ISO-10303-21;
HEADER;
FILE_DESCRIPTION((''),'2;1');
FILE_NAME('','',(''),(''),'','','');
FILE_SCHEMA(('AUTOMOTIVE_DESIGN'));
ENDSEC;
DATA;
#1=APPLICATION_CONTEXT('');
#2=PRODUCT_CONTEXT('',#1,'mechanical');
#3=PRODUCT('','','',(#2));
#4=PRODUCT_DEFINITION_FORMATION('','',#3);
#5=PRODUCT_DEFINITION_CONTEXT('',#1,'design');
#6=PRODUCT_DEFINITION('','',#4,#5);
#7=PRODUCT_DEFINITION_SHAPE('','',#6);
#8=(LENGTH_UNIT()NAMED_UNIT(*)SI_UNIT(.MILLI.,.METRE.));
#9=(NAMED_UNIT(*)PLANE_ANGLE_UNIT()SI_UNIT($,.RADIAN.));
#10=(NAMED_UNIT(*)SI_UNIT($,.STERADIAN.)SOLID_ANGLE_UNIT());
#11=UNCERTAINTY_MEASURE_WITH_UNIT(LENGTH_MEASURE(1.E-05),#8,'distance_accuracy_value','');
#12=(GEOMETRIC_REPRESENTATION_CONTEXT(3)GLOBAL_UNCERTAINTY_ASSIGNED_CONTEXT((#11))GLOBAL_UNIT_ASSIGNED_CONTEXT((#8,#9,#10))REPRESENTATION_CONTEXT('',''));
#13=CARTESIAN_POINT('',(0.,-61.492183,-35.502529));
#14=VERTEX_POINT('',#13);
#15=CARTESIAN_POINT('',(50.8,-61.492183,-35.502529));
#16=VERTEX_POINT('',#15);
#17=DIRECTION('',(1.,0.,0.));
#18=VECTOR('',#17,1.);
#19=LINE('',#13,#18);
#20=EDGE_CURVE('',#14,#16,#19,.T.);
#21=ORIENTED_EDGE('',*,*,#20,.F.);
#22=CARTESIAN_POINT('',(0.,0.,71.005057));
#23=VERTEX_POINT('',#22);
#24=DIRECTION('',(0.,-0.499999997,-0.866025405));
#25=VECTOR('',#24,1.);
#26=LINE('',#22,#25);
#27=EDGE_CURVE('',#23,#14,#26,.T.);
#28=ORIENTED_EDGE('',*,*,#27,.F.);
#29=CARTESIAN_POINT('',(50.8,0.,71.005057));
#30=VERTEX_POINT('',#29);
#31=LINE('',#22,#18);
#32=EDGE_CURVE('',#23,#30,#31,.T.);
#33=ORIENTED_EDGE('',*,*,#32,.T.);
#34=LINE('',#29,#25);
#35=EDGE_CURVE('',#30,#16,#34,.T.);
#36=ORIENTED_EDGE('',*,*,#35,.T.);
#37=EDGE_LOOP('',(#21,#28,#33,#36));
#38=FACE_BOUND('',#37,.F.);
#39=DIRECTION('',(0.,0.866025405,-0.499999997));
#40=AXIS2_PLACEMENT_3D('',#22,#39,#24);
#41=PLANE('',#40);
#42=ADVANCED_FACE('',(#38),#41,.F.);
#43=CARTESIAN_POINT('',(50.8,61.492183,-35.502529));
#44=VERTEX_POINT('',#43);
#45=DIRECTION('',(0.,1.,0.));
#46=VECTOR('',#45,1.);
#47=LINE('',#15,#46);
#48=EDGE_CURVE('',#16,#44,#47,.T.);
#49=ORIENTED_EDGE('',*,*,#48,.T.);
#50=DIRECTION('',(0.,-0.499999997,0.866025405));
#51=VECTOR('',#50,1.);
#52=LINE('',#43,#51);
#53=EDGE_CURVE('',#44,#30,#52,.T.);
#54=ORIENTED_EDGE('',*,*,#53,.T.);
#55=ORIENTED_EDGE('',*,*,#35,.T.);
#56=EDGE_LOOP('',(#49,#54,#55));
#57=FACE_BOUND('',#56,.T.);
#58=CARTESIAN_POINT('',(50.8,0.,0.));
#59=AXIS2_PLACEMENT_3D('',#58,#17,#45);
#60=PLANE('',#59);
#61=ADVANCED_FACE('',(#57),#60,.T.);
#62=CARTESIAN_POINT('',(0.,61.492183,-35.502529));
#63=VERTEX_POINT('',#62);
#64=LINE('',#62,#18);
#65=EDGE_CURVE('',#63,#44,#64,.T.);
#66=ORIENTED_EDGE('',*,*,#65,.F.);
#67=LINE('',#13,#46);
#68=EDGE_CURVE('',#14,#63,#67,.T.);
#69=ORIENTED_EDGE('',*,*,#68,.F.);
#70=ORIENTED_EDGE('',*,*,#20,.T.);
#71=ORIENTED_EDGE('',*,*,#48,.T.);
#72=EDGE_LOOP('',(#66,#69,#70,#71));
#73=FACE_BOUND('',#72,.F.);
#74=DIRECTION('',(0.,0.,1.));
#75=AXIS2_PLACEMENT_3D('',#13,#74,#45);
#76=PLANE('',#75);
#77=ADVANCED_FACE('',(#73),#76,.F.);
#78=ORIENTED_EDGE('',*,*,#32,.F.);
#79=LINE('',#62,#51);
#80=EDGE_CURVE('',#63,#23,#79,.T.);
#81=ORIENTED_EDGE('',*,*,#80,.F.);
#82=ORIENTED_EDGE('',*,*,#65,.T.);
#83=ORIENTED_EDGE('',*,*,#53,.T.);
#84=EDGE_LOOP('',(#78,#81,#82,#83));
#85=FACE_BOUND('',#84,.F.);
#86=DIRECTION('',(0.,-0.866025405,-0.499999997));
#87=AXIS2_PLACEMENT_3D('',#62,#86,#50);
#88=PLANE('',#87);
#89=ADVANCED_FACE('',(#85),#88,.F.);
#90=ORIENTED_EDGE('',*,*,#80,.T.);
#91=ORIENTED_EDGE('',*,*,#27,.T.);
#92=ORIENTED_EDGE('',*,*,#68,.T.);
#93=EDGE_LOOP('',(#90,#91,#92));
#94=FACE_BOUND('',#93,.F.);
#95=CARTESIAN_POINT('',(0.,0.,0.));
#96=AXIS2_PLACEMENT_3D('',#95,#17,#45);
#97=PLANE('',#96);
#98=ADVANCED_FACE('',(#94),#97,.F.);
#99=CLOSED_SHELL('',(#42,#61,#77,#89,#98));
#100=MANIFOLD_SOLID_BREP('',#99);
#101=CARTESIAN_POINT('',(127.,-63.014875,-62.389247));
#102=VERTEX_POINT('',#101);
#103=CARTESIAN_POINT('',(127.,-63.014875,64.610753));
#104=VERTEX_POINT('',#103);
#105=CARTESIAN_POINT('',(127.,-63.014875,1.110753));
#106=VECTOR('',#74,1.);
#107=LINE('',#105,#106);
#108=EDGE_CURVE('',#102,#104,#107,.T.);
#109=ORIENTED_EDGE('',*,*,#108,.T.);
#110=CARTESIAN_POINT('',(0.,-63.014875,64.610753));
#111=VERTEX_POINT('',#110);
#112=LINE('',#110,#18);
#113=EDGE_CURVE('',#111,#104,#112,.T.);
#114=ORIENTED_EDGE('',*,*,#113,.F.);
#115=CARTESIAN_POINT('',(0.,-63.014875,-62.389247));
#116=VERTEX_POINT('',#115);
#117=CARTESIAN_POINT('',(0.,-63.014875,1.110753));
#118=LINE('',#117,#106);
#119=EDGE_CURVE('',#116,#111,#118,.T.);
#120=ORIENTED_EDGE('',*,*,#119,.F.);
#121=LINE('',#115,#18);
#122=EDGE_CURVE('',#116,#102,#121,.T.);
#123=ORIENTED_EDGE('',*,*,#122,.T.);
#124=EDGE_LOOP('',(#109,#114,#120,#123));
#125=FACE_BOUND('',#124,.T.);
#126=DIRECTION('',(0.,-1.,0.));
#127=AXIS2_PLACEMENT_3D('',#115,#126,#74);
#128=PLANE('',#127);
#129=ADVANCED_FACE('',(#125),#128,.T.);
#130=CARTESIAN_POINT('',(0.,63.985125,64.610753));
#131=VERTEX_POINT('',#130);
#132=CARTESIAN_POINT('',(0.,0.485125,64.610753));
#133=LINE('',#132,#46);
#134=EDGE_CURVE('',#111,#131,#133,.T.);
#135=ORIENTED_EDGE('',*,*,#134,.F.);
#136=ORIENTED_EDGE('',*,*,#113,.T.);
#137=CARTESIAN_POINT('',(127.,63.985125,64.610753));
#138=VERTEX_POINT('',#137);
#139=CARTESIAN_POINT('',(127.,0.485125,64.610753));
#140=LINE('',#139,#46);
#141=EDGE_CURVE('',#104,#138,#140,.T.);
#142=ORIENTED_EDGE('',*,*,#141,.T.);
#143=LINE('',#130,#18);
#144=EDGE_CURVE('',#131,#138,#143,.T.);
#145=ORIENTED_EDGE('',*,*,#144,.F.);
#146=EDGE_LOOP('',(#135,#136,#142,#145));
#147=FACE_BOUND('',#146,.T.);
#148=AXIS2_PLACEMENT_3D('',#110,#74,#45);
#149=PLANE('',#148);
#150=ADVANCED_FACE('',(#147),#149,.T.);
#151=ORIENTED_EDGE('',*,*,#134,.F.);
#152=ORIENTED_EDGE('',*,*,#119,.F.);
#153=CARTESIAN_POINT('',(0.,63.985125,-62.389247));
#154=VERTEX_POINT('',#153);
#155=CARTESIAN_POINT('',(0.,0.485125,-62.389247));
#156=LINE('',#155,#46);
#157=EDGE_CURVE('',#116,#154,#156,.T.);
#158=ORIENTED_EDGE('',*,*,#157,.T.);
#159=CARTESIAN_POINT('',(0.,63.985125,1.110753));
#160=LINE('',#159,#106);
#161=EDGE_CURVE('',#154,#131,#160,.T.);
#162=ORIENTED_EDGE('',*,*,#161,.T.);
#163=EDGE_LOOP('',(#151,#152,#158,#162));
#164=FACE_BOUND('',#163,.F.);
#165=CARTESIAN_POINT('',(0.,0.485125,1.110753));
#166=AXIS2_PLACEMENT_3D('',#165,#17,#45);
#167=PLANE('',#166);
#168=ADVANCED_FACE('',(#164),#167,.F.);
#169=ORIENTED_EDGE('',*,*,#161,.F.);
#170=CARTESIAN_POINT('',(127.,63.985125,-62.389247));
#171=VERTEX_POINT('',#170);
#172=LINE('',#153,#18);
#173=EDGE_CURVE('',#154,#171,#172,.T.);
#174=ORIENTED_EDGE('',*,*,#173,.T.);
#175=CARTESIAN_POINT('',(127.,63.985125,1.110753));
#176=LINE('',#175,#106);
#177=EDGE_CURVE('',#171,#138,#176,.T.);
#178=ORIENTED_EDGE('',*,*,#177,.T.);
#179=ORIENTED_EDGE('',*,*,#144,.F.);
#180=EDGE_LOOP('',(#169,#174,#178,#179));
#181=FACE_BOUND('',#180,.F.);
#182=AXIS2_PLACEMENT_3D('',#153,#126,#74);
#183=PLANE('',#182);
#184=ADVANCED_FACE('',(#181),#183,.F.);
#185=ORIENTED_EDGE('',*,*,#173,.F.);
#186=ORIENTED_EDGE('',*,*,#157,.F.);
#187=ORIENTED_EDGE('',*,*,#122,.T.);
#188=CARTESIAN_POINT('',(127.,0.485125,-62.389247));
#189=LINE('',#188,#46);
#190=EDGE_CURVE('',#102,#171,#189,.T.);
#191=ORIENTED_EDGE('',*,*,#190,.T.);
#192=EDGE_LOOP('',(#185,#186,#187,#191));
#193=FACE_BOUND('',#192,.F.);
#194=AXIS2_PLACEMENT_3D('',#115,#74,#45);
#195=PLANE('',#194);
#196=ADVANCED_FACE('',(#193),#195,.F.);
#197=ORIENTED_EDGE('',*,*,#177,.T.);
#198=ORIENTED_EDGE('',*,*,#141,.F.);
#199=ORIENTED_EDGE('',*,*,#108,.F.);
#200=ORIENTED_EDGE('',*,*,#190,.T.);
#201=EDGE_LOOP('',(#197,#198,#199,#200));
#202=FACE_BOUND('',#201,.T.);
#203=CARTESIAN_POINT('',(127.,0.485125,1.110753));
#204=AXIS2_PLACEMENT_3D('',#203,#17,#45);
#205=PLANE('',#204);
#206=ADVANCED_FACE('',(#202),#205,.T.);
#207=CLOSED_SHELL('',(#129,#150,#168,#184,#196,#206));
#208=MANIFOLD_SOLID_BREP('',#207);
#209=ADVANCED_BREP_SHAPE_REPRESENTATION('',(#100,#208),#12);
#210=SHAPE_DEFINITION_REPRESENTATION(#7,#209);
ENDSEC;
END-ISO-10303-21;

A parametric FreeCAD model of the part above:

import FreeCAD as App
import Part
import Sketcher
Q = App.Units.Quantity


def add_polygon(sketch, points):
    """Adds a closed chain of lines whose ends are joined by coincident constraints."""
    first, n = sketch.GeometryCount, len(points)
    for a, b in zip(points, points[1:] + points[:1]):
        sketch.addGeometry(Part.LineSegment(App.Vector(*a, 0), App.Vector(*b, 0)), False)
    for i in range(n):
        sketch.addConstraint(Sketcher.Constraint("Coincident", first + i, 2, first + (i + 1) % n, 1))

doc = App.newDocument("Part")
params = doc.addObject("Spreadsheet::Sheet", "Params")
for row, (alias, value) in enumerate([
    ("sketch1_width", "5 in"),
    ("pad1_length", "5 in"),
    ("pad2_length", "2 in"),
], start=1):
    params.set(f"A{row}", alias)
    params.set(f"B{row}", "=" + value)
    params.setAlias(f"B{row}", alias)

body = doc.addObject("PartDesign::Body", "Body")

# Sketch on YZ plane
sketch1 = doc.addObject("Sketcher::SketchObject", "Sketch")
body.addObject(sketch1)
sketch1.AttachmentSupport = (doc.YZ_Plane, [""])
sketch1.MapMode = "FlatFace"
add_polygon(sketch1, [(-63, 65), (-63, -62), (64, -62), (64, 65)])  # lines 0-3
sketch1.addConstraint([
    Sketcher.Constraint("Vertical", 0),
    Sketcher.Constraint("Horizontal", 1),
    Sketcher.Constraint("Vertical", 2),
    Sketcher.Constraint("Horizontal", 3),
    Sketcher.Constraint("Equal", 3, 0),
    Sketcher.Constraint("DistanceX", 1, 1, 1, 2, Q("5 in")),
    Sketcher.Constraint("DistanceX", 0, 2, -1, 1, 63.014875),
    Sketcher.Constraint("DistanceY", 0, 2, -1, 1, 62.389247),
])
sketch1.setExpression("Constraints[9]", "Params.sketch1_width")
pad1 = doc.addObject("PartDesign::Pad", "Pad")
body.addObject(pad1)
pad1.Profile = sketch1
pad1.setExpression("Length", "Params.pad1_length")
body2 = doc.addObject("PartDesign::Body", "Body001")

# Sketch on YZ plane
sketch2 = doc.addObject("Sketcher::SketchObject", "Sketch001")
body2.addObject(sketch2)
sketch2.AttachmentSupport = (doc.getObject("YZ_Plane001"), [""])
sketch2.MapMode = "FlatFace"
add_polygon(sketch2, [(0, 71), (-61, -36), (61, -36)])  # lines 0-2
sketch2.addConstraint([
    Sketcher.Constraint("Horizontal", 1),
    Sketcher.Constraint("PointOnObject", 2, 2, -2),
    Sketcher.Constraint("Equal", 0, 2),
    Sketcher.Constraint("Angle", 0, Q("-120 deg")),
    Sketcher.Constraint("DistanceX", 1, 1, 1, 2, 122.984366),
    Sketcher.Constraint("DistanceY", 0, 2, -1, 1, 35.502529),
])
pad2 = doc.addObject("PartDesign::Pad", "Pad001")
body2.addObject(pad2)
pad2.Profile = sketch2
pad2.setExpression("Length", "Params.pad2_length")

doc.recompute()
